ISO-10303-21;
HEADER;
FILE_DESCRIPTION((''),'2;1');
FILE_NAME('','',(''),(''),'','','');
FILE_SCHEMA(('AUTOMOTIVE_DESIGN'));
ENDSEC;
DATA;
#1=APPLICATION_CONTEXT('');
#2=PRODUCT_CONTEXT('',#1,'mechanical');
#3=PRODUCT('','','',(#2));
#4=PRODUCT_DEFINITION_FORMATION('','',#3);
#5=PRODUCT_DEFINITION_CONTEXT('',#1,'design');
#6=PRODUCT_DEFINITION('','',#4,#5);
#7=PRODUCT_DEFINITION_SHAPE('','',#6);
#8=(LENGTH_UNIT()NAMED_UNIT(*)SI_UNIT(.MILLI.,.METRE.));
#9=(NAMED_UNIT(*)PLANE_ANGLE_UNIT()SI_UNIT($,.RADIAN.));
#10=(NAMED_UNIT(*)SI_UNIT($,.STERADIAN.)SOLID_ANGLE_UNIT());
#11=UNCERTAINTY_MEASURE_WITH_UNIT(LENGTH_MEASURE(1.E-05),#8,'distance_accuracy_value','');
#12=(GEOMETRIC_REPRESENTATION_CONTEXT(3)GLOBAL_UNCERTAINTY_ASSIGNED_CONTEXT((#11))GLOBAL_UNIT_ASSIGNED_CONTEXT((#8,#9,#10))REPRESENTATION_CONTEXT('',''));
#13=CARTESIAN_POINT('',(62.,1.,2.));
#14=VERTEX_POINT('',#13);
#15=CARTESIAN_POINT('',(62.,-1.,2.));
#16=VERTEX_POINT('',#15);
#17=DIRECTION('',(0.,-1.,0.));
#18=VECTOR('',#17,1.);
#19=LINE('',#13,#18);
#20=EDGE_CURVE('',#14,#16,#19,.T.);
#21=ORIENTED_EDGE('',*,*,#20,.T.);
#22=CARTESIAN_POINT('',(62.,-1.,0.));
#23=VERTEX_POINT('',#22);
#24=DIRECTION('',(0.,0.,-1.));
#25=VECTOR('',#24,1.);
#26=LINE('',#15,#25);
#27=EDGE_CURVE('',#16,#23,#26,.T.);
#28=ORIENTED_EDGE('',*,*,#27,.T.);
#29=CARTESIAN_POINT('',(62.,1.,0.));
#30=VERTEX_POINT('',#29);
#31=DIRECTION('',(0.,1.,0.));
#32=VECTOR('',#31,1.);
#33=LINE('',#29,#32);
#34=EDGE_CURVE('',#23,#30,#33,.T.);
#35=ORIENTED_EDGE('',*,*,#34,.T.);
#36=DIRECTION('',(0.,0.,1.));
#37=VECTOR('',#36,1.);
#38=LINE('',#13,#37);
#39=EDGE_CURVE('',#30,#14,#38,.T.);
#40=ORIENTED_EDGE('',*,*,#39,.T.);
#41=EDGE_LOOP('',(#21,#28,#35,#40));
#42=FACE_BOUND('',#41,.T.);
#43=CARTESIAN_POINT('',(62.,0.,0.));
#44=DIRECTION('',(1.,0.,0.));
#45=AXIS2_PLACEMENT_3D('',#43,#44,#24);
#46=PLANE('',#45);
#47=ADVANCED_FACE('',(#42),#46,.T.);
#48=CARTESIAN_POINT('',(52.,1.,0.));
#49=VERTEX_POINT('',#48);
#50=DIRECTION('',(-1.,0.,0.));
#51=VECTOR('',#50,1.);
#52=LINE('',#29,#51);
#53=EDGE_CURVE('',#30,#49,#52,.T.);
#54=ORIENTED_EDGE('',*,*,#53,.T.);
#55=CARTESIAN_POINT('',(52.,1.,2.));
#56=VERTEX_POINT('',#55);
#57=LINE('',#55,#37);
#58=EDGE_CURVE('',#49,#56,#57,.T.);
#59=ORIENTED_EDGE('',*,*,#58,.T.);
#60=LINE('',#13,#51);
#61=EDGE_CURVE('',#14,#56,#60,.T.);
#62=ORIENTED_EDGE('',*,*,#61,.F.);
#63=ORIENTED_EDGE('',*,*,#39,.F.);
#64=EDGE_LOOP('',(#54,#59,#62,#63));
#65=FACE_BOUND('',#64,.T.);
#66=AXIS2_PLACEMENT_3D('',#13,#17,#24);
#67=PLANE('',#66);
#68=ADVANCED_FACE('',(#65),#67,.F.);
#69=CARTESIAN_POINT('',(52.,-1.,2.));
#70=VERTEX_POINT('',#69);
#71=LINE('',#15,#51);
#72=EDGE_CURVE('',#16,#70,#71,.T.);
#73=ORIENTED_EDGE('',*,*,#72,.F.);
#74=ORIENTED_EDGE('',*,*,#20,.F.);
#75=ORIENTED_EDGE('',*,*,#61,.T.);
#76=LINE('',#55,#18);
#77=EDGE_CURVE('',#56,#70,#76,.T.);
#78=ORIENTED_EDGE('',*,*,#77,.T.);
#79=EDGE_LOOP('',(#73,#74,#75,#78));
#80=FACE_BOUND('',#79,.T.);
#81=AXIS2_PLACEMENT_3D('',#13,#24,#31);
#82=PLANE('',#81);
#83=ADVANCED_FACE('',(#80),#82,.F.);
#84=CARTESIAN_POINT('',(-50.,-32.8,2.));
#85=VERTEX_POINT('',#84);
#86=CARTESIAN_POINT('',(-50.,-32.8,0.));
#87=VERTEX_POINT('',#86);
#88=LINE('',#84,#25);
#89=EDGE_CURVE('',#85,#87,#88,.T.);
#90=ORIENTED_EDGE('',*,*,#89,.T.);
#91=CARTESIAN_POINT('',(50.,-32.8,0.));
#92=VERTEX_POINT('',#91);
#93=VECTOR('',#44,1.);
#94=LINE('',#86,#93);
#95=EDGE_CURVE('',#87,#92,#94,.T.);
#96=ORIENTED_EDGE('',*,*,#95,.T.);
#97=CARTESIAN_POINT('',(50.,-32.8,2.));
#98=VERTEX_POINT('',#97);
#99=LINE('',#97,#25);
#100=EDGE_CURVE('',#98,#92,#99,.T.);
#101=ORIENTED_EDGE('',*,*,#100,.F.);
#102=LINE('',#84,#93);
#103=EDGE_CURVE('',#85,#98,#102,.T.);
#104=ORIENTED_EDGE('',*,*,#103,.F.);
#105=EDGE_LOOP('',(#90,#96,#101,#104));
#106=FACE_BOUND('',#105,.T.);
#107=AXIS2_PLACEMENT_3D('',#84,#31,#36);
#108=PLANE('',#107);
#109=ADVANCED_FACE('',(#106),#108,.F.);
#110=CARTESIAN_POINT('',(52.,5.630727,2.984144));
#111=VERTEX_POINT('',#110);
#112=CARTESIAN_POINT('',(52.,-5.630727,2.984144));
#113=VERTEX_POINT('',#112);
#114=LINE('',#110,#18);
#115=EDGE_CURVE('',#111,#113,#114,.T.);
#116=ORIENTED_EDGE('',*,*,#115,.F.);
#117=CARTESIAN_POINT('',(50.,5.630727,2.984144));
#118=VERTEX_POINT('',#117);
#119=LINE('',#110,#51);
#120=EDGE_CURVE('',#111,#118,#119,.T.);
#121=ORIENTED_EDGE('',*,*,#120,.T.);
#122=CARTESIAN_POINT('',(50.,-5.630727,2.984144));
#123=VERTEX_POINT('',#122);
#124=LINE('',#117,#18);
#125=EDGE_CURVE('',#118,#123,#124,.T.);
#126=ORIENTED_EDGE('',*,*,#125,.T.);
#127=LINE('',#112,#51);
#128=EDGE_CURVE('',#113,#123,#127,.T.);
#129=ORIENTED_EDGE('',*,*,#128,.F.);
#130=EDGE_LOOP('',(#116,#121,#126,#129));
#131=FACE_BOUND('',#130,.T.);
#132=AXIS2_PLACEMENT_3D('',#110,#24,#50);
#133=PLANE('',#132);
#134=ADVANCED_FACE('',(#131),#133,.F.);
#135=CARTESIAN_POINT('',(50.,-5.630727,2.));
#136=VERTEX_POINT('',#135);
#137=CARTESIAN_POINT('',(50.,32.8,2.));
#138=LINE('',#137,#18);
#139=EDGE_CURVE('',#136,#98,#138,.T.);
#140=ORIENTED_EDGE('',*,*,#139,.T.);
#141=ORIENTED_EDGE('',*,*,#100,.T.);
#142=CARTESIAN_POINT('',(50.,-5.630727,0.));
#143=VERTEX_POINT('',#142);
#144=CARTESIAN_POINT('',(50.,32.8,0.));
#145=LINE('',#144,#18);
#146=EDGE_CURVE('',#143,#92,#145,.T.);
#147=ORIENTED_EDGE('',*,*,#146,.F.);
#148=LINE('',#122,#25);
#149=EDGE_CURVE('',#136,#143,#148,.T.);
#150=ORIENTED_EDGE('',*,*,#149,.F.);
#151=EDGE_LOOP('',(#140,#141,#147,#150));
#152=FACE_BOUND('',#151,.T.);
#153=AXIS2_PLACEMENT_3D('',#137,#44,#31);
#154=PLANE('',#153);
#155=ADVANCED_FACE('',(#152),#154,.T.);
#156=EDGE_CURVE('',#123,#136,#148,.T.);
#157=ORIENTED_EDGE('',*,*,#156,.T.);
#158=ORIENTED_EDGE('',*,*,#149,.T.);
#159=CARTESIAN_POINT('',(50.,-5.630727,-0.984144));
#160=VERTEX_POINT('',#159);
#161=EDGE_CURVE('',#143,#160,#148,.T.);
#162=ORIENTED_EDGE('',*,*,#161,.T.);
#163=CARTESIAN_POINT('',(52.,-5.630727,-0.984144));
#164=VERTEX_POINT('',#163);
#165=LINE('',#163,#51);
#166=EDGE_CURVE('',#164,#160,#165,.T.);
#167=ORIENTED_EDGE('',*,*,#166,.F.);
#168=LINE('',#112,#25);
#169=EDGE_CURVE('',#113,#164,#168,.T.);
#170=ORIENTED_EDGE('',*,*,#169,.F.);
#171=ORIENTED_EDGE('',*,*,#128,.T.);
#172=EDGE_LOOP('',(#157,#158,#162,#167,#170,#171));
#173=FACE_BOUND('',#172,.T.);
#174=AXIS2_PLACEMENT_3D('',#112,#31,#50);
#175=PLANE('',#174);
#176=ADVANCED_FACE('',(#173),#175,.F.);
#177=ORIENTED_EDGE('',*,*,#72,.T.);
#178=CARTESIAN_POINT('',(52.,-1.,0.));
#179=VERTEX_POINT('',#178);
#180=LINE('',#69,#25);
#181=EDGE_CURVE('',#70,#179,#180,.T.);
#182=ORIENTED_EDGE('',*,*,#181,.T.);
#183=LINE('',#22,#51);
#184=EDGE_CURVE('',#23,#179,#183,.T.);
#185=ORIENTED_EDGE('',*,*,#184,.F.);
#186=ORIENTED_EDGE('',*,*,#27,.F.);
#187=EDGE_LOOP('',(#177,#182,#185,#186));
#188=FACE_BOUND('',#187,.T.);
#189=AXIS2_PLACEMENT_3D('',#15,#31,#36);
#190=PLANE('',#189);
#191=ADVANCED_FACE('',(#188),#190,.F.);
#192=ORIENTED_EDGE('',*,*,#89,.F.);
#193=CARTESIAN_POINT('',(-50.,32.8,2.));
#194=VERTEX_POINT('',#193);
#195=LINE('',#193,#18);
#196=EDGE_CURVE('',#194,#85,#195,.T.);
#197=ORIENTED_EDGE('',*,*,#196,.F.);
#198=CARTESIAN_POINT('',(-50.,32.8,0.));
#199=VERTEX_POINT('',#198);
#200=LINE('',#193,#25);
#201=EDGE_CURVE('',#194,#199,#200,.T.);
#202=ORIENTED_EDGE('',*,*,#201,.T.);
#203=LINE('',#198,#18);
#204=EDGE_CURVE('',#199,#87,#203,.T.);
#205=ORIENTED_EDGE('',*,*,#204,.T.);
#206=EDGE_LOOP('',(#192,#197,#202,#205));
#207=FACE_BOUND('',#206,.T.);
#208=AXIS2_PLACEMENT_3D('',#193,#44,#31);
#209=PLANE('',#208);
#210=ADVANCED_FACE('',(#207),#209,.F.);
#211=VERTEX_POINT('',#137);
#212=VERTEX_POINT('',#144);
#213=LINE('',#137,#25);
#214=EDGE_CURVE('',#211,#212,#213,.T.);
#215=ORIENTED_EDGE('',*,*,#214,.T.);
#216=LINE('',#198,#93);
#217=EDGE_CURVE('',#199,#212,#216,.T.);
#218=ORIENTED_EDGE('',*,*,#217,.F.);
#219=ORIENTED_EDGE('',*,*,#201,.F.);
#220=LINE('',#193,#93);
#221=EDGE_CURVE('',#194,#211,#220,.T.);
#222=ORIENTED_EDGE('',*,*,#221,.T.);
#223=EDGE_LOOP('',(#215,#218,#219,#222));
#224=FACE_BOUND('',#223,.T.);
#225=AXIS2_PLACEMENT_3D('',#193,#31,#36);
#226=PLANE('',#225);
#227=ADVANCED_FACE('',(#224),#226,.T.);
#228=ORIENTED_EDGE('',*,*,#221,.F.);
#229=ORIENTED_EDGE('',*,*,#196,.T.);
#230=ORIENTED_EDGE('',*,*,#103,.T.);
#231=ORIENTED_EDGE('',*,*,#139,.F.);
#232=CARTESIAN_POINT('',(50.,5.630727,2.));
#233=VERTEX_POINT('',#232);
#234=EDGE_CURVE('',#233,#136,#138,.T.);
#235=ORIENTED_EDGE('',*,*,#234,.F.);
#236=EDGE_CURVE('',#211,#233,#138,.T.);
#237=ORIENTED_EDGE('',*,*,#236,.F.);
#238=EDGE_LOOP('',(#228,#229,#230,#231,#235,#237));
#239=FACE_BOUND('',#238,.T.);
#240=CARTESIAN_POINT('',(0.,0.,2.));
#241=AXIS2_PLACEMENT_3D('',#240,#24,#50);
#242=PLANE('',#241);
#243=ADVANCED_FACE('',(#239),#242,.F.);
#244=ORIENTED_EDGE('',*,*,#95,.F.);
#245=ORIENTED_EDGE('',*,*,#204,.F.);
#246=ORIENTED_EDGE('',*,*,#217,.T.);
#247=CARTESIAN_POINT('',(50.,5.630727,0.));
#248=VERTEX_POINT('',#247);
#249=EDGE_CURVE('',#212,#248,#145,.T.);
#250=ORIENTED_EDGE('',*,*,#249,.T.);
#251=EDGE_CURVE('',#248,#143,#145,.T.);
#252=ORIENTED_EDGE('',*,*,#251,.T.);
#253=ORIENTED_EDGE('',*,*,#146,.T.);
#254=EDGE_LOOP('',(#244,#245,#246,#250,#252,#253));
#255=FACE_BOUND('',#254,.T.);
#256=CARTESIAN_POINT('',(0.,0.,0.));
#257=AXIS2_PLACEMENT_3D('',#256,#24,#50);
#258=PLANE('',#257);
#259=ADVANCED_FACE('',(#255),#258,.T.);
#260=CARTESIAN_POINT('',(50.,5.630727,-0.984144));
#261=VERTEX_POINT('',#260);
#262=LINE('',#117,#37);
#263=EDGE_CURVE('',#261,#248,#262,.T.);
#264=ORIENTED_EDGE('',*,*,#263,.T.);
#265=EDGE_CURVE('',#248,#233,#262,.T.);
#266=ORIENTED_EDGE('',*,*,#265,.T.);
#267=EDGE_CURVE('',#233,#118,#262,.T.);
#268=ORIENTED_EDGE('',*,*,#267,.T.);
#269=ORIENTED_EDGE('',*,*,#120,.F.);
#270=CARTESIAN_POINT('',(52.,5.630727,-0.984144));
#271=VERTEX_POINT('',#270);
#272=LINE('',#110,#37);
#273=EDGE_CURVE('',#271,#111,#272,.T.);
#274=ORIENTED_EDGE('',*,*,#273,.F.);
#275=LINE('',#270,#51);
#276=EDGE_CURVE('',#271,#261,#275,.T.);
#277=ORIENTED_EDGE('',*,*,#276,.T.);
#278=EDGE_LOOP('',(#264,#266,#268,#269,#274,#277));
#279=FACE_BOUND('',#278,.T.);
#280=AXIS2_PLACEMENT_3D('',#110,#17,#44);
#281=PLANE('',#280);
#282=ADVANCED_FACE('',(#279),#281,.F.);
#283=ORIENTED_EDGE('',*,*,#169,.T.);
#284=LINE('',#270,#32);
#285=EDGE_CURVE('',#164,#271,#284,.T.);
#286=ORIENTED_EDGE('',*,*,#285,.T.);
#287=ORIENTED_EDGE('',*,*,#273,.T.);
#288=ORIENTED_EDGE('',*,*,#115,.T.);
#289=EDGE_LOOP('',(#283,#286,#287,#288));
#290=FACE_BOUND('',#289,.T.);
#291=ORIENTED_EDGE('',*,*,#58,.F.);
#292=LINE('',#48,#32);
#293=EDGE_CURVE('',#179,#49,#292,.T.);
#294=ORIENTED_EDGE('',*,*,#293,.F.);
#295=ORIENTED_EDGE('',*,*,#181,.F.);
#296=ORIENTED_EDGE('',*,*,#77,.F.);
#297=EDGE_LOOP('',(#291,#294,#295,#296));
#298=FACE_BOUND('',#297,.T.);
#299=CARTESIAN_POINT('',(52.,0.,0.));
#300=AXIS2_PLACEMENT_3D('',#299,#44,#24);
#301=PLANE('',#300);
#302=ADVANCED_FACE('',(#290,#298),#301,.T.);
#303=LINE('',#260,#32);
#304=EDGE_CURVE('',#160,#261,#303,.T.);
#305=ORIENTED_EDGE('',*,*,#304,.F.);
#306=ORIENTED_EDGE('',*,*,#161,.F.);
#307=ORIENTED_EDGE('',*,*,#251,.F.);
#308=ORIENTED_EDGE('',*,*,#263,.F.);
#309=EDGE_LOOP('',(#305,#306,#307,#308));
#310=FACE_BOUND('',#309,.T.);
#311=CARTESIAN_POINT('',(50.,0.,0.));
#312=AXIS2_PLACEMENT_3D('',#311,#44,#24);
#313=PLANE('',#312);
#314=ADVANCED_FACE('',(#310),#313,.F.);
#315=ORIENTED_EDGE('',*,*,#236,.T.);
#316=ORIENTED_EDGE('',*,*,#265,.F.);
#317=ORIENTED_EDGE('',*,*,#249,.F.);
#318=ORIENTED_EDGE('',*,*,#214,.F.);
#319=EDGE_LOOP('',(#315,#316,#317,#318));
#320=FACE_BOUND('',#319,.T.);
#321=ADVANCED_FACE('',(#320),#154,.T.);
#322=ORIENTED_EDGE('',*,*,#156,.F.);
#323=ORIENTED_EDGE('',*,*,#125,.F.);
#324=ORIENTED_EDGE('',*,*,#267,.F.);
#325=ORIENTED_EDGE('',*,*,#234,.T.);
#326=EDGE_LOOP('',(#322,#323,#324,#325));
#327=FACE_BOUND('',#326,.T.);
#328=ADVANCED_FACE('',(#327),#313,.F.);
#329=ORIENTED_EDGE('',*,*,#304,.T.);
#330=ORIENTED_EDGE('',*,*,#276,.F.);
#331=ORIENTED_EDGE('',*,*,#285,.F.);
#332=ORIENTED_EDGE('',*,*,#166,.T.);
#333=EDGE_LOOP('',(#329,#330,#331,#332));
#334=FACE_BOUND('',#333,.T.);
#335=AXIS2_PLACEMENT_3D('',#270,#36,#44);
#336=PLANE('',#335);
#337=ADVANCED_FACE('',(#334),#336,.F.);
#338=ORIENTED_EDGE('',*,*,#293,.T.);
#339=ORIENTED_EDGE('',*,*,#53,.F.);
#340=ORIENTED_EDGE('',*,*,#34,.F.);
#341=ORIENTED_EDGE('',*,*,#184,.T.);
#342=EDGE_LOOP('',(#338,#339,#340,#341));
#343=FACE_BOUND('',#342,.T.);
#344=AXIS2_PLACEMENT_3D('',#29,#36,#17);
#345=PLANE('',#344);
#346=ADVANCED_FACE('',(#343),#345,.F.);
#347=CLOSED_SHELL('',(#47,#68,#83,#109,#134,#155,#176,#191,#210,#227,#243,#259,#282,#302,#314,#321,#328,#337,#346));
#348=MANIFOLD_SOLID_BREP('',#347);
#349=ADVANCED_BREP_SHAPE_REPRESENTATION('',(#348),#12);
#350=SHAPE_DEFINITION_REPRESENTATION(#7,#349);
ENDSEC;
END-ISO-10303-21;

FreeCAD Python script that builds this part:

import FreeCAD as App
import Part
import Sketcher

V = App.Vector
Q = App.Units.Quantity


def add_polygon(sketch, points):
    """Adds a closed chain of lines whose ends are joined by coincident constraints."""
    first, n = sketch.GeometryCount, len(points)
    for a, b in zip(points, points[1:] + points[:1]):
        sketch.addGeometry(Part.LineSegment(App.Vector(*a, 0), App.Vector(*b, 0)), False)
    for i in range(n):
        sketch.addConstraint(Sketcher.Constraint("Coincident", first + i, 2, first + (i + 1) % n, 1))

doc = App.newDocument("Part")
body = doc.addObject("PartDesign::Body", "Body")

# Sketch on XY plane
sketch1 = body.newObject("Sketcher::SketchObject", "Sketch")
sketch1.AttachmentSupport = (doc.getObject("XY_Plane"), [""])
sketch1.MapMode = "FlatFace"
add_polygon(sketch1, [(-50, 32.8), (-50, -32.8), (50, -32.8), (50, 32.8)])  # lines 0-3
sketch1.addConstraint([
    Sketcher.Constraint("Vertical", 0),
    Sketcher.Constraint("Horizontal", 1),
    Sketcher.Constraint("Vertical", 2),
    Sketcher.Constraint("Horizontal", 3),
    Sketcher.Constraint("Symmetric", 0, 2, 2, 2, -1, 1),
    Sketcher.Constraint("DistanceX", 1, 1, 1, 2, Q("100 mm")),
    Sketcher.Constraint("DistanceY", 0, 2, 0, 1, Q("65.6 mm")),
])
pad1 = body.newObject("PartDesign::Pad", "Pad")
pad1.Profile = sketch1
pad1.Length = 2

# Sketch on YZ plane
sketch2 = body.newObject("Sketcher::SketchObject", "Sketch001")
sketch2.AttachmentSupport = (doc.getObject("YZ_Plane"), [""])
sketch2.MapMode = "FlatFace"
sketch2.AttachmentOffset = App.Placement(V(0, 0, 50), App.Rotation())
add_polygon(sketch2, [(5.630727, 2.984144), (-5.630727, 2.984144), (-5.630727, -0.984144), (5.630727, -0.984144)])  # lines 0-3
sketch2.addConstraint([
    Sketcher.Constraint("Horizontal", 0),
    Sketcher.Constraint("Vertical", 1),
    Sketcher.Constraint("Horizontal", 2),
    Sketcher.Constraint("Vertical", 3),
    Sketcher.Constraint("DistanceY", 1, 2, 1, 1, Q("3.968288 mm")),
    Sketcher.Constraint("DistanceX", 0, 2, 0, 1, Q("11.261454 mm")),
    Sketcher.Constraint("DistanceX", 0, 2, -1, 1, Q("5.630727 mm")),
    Sketcher.Constraint("DistanceY", -1, 1, 0, 2, Q("2.984144 mm")),
])
pad2 = body.newObject("PartDesign::Pad", "Pad001")
pad2.Profile = sketch2
pad2.Length = 2

# Sketch on YZ plane
sketch3 = body.newObject("Sketcher::SketchObject", "Sketch002")
sketch3.AttachmentSupport = (doc.getObject("YZ_Plane"), [""])
sketch3.MapMode = "FlatFace"
sketch3.AttachmentOffset = App.Placement(V(0, 0, 52), App.Rotation())
add_polygon(sketch3, [(1, 2), (-1, 2), (-1, 0), (1, 0)])  # lines 0-3
sketch3.addConstraint([
    Sketcher.Constraint("Horizontal", 0),
    Sketcher.Constraint("Vertical", 1),
    Sketcher.Constraint("Horizontal", 2),
    Sketcher.Constraint("Vertical", 3),
    Sketcher.Constraint("Symmetric", 1, 2, 2, 2, -1, 1),
    Sketcher.Constraint("Equal", 2, 1),
    Sketcher.Constraint("DistanceX", 0, 2, 0, 1, Q("2 mm")),
])
pad3 = body.newObject("PartDesign::Pad", "Pad002")
pad3.Profile = sketch3
pad3.Length = 10

doc.recompute()
